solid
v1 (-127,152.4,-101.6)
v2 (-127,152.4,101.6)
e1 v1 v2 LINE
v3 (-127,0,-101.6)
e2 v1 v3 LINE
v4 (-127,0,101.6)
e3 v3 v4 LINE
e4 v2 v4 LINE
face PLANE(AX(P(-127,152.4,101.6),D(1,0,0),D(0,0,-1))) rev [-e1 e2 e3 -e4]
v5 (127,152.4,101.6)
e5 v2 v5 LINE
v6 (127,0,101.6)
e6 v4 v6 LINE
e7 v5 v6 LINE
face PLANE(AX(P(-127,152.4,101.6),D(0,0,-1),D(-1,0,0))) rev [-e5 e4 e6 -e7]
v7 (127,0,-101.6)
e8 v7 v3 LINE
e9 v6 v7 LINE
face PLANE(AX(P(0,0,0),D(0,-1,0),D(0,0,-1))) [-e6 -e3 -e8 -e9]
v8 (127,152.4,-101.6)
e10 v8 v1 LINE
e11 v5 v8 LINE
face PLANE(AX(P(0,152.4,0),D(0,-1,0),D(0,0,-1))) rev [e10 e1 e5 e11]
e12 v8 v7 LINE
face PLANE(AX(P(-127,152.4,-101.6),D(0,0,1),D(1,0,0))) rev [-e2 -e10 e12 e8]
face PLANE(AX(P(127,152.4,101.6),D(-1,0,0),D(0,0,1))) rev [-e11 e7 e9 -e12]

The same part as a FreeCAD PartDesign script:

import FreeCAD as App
import Part
import Sketcher

V = App.Vector
Q = App.Units.Quantity


def add_polygon(sketch, points):
    """Adds a closed chain of lines whose ends are joined by coincident constraints."""
    first, n = sketch.GeometryCount, len(points)
    for a, b in zip(points, points[1:] + points[:1]):
        sketch.addGeometry(Part.LineSegment(App.Vector(*a, 0), App.Vector(*b, 0)), False)
    for i in range(n):
        sketch.addConstraint(Sketcher.Constraint("Coincident", first + i, 2, first + (i + 1) % n, 1))

doc = App.newDocument("Part")
body = doc.addObject("PartDesign::Body", "Body")

sketch1 = body.newObject("Sketcher::SketchObject", "Sketch")
sketch1.AttachmentSupport = (doc.getObject("XZ_Plane"), [""])
sketch1.MapMode = "FlatFace"
add_polygon(sketch1, [(-127, -102), (-127, 102), (127, 102), (127, -102)])
sketch1.addConstraint([
    Sketcher.Constraint("Vertical", 0),
    Sketcher.Constraint("Horizontal", 1),
    Sketcher.Constraint("Vertical", 2),
    Sketcher.Constraint("Horizontal", 3),
    Sketcher.Constraint("Symmetric", 0, 2, 2, 2, -1, 1),
    Sketcher.Constraint("DistanceX", 1, 1, 1, 2, Q("10 in")),
    Sketcher.Constraint("DistanceY", 0, 1, 0, 2, Q("8 in")),
])
pad1 = body.newObject("PartDesign::Pad", "Pad")
pad1.Profile = sketch1
pad1.Length = Q("6 in")
pad1.Reversed = True

doc.recompute()
